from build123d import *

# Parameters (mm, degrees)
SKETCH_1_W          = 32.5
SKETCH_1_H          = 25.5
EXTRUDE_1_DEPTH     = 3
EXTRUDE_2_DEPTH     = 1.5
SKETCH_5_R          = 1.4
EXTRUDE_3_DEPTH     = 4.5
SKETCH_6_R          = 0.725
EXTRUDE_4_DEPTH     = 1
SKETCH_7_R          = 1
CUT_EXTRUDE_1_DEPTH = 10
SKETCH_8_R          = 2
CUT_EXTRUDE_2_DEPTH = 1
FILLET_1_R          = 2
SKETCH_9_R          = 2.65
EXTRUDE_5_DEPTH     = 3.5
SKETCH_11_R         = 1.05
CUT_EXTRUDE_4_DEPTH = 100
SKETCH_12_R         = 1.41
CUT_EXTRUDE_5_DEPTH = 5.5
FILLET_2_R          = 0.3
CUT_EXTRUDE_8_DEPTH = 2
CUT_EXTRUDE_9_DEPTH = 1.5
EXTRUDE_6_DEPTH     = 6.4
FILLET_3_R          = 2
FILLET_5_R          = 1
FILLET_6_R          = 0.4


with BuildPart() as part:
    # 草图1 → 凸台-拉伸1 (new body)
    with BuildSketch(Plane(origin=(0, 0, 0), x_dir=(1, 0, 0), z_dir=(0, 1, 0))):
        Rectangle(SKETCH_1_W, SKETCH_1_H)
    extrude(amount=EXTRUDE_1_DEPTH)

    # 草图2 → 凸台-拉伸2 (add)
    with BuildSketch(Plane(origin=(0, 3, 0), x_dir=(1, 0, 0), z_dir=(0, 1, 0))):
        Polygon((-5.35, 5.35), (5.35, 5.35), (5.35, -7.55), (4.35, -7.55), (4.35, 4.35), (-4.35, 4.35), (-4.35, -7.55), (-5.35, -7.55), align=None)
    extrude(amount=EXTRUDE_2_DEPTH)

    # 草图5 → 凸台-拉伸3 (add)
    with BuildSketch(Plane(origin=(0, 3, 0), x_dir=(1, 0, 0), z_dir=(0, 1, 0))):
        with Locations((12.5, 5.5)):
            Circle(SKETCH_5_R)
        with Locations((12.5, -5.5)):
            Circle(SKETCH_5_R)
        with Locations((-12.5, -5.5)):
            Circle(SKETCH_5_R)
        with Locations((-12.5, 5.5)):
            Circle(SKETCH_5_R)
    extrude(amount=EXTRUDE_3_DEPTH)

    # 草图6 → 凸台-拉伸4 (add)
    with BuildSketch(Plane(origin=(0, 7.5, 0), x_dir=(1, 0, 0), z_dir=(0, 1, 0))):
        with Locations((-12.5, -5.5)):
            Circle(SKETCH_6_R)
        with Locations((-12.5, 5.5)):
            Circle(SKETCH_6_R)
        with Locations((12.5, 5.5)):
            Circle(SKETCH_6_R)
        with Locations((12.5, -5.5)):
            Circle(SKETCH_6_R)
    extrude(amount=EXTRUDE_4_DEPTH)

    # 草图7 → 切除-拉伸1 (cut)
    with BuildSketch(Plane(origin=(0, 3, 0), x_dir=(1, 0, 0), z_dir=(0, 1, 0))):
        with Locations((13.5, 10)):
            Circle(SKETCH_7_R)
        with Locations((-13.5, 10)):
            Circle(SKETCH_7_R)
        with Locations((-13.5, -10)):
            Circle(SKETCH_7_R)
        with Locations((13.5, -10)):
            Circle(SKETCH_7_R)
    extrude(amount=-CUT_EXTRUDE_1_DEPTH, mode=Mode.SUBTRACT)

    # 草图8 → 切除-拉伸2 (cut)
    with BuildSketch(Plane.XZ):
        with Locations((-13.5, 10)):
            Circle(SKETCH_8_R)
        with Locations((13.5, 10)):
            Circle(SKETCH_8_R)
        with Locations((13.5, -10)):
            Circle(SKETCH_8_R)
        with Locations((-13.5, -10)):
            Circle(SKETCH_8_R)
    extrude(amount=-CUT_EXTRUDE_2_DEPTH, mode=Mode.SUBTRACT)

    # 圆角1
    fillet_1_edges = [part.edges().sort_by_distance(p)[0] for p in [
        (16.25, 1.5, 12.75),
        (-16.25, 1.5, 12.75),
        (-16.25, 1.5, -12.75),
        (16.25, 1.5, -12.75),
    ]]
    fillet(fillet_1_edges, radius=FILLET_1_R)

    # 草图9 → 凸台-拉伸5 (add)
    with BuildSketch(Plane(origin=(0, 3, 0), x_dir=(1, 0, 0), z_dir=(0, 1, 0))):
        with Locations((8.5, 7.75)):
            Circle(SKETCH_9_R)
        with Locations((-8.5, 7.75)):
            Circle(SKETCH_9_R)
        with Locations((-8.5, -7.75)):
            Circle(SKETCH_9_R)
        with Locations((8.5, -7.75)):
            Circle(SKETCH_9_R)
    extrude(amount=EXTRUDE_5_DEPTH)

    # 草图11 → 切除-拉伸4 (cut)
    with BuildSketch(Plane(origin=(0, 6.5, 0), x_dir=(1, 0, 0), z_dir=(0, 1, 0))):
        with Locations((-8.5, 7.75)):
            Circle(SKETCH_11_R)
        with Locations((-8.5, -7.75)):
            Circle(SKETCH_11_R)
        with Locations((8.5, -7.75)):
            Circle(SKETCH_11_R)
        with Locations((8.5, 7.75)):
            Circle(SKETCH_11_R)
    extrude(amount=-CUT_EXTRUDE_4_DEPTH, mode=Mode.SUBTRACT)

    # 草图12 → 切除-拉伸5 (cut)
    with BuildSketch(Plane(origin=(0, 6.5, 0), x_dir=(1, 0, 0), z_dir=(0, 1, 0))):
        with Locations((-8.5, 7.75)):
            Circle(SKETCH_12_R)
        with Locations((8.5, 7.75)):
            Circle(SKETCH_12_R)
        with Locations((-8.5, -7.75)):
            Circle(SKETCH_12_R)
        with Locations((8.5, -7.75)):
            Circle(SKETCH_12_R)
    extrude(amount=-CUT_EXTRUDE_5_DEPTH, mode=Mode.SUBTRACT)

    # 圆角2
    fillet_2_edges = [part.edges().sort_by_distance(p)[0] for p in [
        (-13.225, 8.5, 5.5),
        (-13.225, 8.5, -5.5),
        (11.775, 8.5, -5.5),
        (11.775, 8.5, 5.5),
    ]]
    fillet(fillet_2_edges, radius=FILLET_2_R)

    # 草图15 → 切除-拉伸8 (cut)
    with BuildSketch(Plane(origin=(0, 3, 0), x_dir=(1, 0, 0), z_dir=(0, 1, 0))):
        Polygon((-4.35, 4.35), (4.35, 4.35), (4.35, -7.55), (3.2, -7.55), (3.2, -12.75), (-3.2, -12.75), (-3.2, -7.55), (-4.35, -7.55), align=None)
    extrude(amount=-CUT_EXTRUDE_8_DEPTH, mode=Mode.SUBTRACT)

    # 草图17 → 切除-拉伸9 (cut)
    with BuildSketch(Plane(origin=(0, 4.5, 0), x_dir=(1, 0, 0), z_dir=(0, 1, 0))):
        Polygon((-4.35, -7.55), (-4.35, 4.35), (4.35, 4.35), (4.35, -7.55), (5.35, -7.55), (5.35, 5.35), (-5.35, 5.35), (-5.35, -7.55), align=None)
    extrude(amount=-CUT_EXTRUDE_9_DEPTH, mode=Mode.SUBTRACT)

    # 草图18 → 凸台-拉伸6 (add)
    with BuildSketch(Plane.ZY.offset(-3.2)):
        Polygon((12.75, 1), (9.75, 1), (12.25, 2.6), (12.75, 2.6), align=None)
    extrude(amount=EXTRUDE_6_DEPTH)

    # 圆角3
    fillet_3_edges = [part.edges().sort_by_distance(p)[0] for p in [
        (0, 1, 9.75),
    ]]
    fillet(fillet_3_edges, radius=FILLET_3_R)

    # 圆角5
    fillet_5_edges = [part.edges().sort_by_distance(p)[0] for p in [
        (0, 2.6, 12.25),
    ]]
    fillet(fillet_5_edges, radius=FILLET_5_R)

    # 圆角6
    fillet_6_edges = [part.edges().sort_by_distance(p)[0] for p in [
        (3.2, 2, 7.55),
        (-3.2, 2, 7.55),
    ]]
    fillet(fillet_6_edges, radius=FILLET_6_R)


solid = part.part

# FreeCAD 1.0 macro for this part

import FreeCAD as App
import Part
import Sketcher

V = App.Vector


def edges_at(feature, points):
    """Names of the edges that pass closest to the given points."""
    edges = feature.Shape.Edges
    near = lambda p: min(range(len(edges)), key=lambda i: edges[i].distToShape(Part.Vertex(*p))[0])
    return sorted({f"Edge{near(p) + 1}" for p in points})

doc = App.newDocument("Part")
body = doc.addObject("PartDesign::Body", "Body")

# Sketch on XZ plane
sketch1 = body.newObject("Sketcher::SketchObject", "Sketch")
sketch1.AttachmentSupport = (doc.getObject("XZ_Plane"), [""])
sketch1.MapMode = "FlatFace"
sketch1.addGeometry(Part.LineSegment(V(-16.25, -12.75, 0), V(-16.25, 12.75, 0)), False)
sketch1.addGeometry(Part.LineSegment(V(-16.25, 12.75, 0), V(16.25, 12.75, 0)), False)
sketch1.addGeometry(Part.LineSegment(V(16.25, 12.75, 0), V(16.25, -12.75, 0)), False)
sketch1.addGeometry(Part.LineSegment(V(16.25, -12.75, 0), V(-16.25, -12.75, 0)), False)
sketch1.addConstraint(Sketcher.Constraint("Coincident", 0, 2, 1, 1))
sketch1.addConstraint(Sketcher.Constraint("Coincident", 1, 2, 2, 1))
sketch1.addConstraint(Sketcher.Constraint("Coincident", 2, 2, 3, 1))
sketch1.addConstraint(Sketcher.Constraint("Coincident", 3, 2, 0, 1))
sketch1.addConstraint(Sketcher.Constraint("Vertical", 0))
sketch1.addConstraint(Sketcher.Constraint("Horizontal", 1))
sketch1.addConstraint(Sketcher.Constraint("Vertical", 2))
sketch1.addConstraint(Sketcher.Constraint("Horizontal", 3))
sketch1.addConstraint(Sketcher.Constraint("Symmetric", 0, 2, 2, 2, -1, 1))
sketch1.addConstraint(Sketcher.Constraint("DistanceX", 1, 1, 1, 2, 32.5))
sketch1.addConstraint(Sketcher.Constraint("DistanceY", 0, 1, 0, 2, 25.5))
pad1 = body.newObject("PartDesign::Pad", "Pad")
pad1.Profile = sketch1
pad1.Length = 3
pad1.Reversed = True

# Sketch on XZ plane
sketch2 = body.newObject("Sketcher::SketchObject", "Sketch001")
sketch2.AttachmentSupport = (doc.getObject("XZ_Plane"), [""])
sketch2.MapMode = "FlatFace"
sketch2.AttachmentOffset = App.Placement(V(0, 0, -3), App.Rotation())
sketch2.addGeometry(Part.LineSegment(V(5.35, -5.35, 0), V(-5.35, -5.35, 0)), False)
sketch2.addGeometry(Part.LineSegment(V(-5.35, -5.35, 0), V(-5.35, 7.55, 0)), False)
sketch2.addGeometry(Part.LineSegment(V(-5.35, 7.55, 0), V(-4.35, 7.55, 0)), False)
sketch2.addGeometry(Part.LineSegment(V(-4.35, 7.55, 0), V(-4.35, -4.35, 0)), False)
sketch2.addGeometry(Part.LineSegment(V(-4.35, -4.35, 0), V(4.35, -4.35, 0)), False)
sketch2.addGeometry(Part.LineSegment(V(4.35, -4.35, 0), V(4.35, 7.55, 0)), False)
sketch2.addGeometry(Part.LineSegment(V(4.35, 7.55, 0), V(5.35, 7.55, 0)), False)
sketch2.addGeometry(Part.LineSegment(V(5.35, 7.55, 0), V(5.35, -5.35, 0)), False)
sketch2.addConstraint(Sketcher.Constraint("Coincident", 0, 2, 1, 1))
sketch2.addConstraint(Sketcher.Constraint("Coincident", 1, 2, 2, 1))
sketch2.addConstraint(Sketcher.Constraint("Coincident", 2, 2, 3, 1))
sketch2.addConstraint(Sketcher.Constraint("Coincident", 3, 2, 4, 1))
sketch2.addConstraint(Sketcher.Constraint("Coincident", 4, 2, 5, 1))
sketch2.addConstraint(Sketcher.Constraint("Coincident", 5, 2, 6, 1))
sketch2.addConstraint(Sketcher.Constraint("Coincident", 6, 2, 7, 1))
sketch2.addConstraint(Sketcher.Constraint("Coincident", 7, 2, 0, 1))
sketch2.addConstraint(Sketcher.Constraint("Horizontal", 0))
sketch2.addConstraint(Sketcher.Constraint("Vertical", 1))
sketch2.addConstraint(Sketcher.Constraint("Horizontal", 2))
sketch2.addConstraint(Sketcher.Constraint("Vertical", 3))
sketch2.addConstraint(Sketcher.Constraint("Horizontal", 4))
sketch2.addConstraint(Sketcher.Constraint("Vertical", 5))
sketch2.addConstraint(Sketcher.Constraint("Horizontal", 6))
sketch2.addConstraint(Sketcher.Constraint("Vertical", 7))
sketch2.addConstraint(Sketcher.Constraint("Symmetric", 2, 2, 5, 2, -2))
sketch2.addConstraint(Sketcher.Constraint("Equal", 2, 6))
sketch2.addConstraint(Sketcher.Constraint("DistanceX", 2, 1, 2, 2, 1.0))
sketch2.addConstraint(Sketcher.Constraint("DistanceX", 0, 2, 0, 1, 10.7))
sketch2.addConstraint(Sketcher.Constraint("DistanceY", 1, 1, 1, 2, 12.9))
sketch2.addConstraint(Sketcher.Constraint("DistanceY", 3, 2, 3, 1, 11.9))
sketch2.addConstraint(Sketcher.Constraint("DistanceY", 0, 2, -1, 1, 5.35))
pad2 = body.newObject("PartDesign::Pad", "Pad001")
pad2.Profile = sketch2
pad2.Length = 1.5
pad2.Reversed = True

# Sketch on XZ plane
sketch3 = body.newObject("Sketcher::SketchObject", "Sketch002")
sketch3.AttachmentSupport = (doc.getObject("XZ_Plane"), [""])
sketch3.MapMode = "FlatFace"
sketch3.AttachmentOffset = App.Placement(V(0, 0, -3), App.Rotation())
sketch3.addGeometry(Part.Circle(V(12.5, -5.5, 0), V(0, 0, 1), 1.4), False)
sketch3.addGeometry(Part.Circle(V(12.5, 5.5, 0), V(0, 0, 1), 1.4), False)
sketch3.addGeometry(Part.Circle(V(-12.5, 5.5, 0), V(0, 0, 1), 1.4), False)
sketch3.addGeometry(Part.Circle(V(-12.5, -5.5, 0), V(0, 0, 1), 1.4), False)
sketch3.addConstraint(Sketcher.Constraint("Equal", 0, 1))
sketch3.addConstraint(Sketcher.Constraint("Equal", 1, 2))
sketch3.addConstraint(Sketcher.Constraint("Equal", 2, 3))
sketch3.addConstraint(Sketcher.Constraint("Symmetric", 0, 3, 2, 3, -1, 1))
sketch3.addConstraint(Sketcher.Constraint("Symmetric", 1, 3, 3, 3, -1, 1))
sketch3.addConstraint(Sketcher.Constraint("Symmetric", 1, 3, 2, 3, -2))
sketch3.addConstraint(Sketcher.Constraint("Diameter", 0, 2.8))
sketch3.addConstraint(Sketcher.Constraint("DistanceY", 0, 3, 1, 3, 11.0))
sketch3.addConstraint(Sketcher.Constraint("DistanceX", 2, 3, 1, 3, 25.0))
pad3 = body.newObject("PartDesign::Pad", "Pad002")
pad3.Profile = sketch3
pad3.Length = 4.5
pad3.Reversed = True

# Sketch on XZ plane
sketch4 = body.newObject("Sketcher::SketchObject", "Sketch003")
sketch4.AttachmentSupport = (doc.getObject("XZ_Plane"), [""])
sketch4.MapMode = "FlatFace"
sketch4.AttachmentOffset = App.Placement(V(0, 0, -7.5), App.Rotation())
sketch4.addGeometry(Part.Circle(V(-12.5, 5.5, 0), V(0, 0, 1), 0.725), False)
sketch4.addGeometry(Part.Circle(V(-12.5, -5.5, 0), V(0, 0, 1), 0.725), False)
sketch4.addGeometry(Part.Circle(V(12.5, -5.5, 0), V(0, 0, 1), 0.725), False)
sketch4.addGeometry(Part.Circle(V(12.5, 5.5, 0), V(0, 0, 1), 0.725), False)
sketch4.addConstraint(Sketcher.Constraint("Equal", 0, 1))
sketch4.addConstraint(Sketcher.Constraint("Equal", 1, 2))
sketch4.addConstraint(Sketcher.Constraint("Equal", 2, 3))
sketch4.addConstraint(Sketcher.Constraint("Symmetric", 0, 3, 2, 3, -1, 1))
sketch4.addConstraint(Sketcher.Constraint("Symmetric", 1, 3, 3, 3, -1, 1))
sketch4.addConstraint(Sketcher.Constraint("Symmetric", 1, 3, 2, 3, -2))
sketch4.addConstraint(Sketcher.Constraint("Diameter", 0, 1.45))
sketch4.addConstraint(Sketcher.Constraint("DistanceY", 1, 3, 0, 3, 11.0))
sketch4.addConstraint(Sketcher.Constraint("DistanceX", 1, 3, 2, 3, 25.0))
pad4 = body.newObject("PartDesign::Pad", "Pad003")
pad4.Profile = sketch4
pad4.Length = 1
pad4.Reversed = True

# Sketch on XZ plane
sketch5 = body.newObject("Sketcher::SketchObject", "Sketch004")
sketch5.AttachmentSupport = (doc.getObject("XZ_Plane"), [""])
sketch5.MapMode = "FlatFace"
sketch5.AttachmentOffset = App.Placement(V(0, 0, -3), App.Rotation())
sketch5.addGeometry(Part.Circle(V(13.5, -10, 0), V(0, 0, 1), 1), False)
sketch5.addGeometry(Part.Circle(V(-13.5, -10, 0), V(0, 0, 1), 1), False)
sketch5.addGeometry(Part.Circle(V(-13.5, 10, 0), V(0, 0, 1), 1), False)
sketch5.addGeometry(Part.Circle(V(13.5, 10, 0), V(0, 0, 1), 1), False)
sketch5.addConstraint(Sketcher.Constraint("Equal", 0, 1))
sketch5.addConstraint(Sketcher.Constraint("Equal", 1, 2))
sketch5.addConstraint(Sketcher.Constraint("Equal", 2, 3))
sketch5.addConstraint(Sketcher.Constraint("Symmetric", 0, 3, 2, 3, -1, 1))
sketch5.addConstraint(Sketcher.Constraint("Symmetric", 1, 3, 3, 3, -1, 1))
sketch5.addConstraint(Sketcher.Constraint("Symmetric", 0, 3, 1, 3, -2))
sketch5.addConstraint(Sketcher.Constraint("Diameter", 0, 2.0))
sketch5.addConstraint(Sketcher.Constraint("DistanceY", 0, 3, -1, 1, 10.0))
sketch5.addConstraint(Sketcher.Constraint("DistanceX", 1, 3, 0, 3, 27.0))
pocket1 = body.newObject("PartDesign::Pocket", "Pocket")
pocket1.Profile = sketch5
pocket1.Length = 10
pocket1.Reversed = True

# Sketch on XZ plane
sketch6 = body.newObject("Sketcher::SketchObject", "Sketch005")
sketch6.AttachmentSupport = (doc.getObject("XZ_Plane"), [""])
sketch6.MapMode = "FlatFace"
sketch6.addGeometry(Part.Circle(V(-13.5, 10, 0), V(0, 0, 1), 2), False)
sketch6.addGeometry(Part.Circle(V(13.5, 10, 0), V(0, 0, 1), 2), False)
sketch6.addGeometry(Part.Circle(V(13.5, -10, 0), V(0, 0, 1), 2), False)
sketch6.addGeometry(Part.Circle(V(-13.5, -10, 0), V(0, 0, 1), 2), False)
sketch6.addConstraint(Sketcher.Constraint("Equal", 0, 1))
sketch6.addConstraint(Sketcher.Constraint("Equal", 1, 2))
sketch6.addConstraint(Sketcher.Constraint("Equal", 2, 3))
sketch6.addConstraint(Sketcher.Constraint("Symmetric", 0, 3, 2, 3, -1, 1))
sketch6.addConstraint(Sketcher.Constraint("Symmetric", 1, 3, 3, 3, -1, 1))
sketch6.addConstraint(Sketcher.Constraint("Symmetric", 0, 3, 1, 3, -2))
sketch6.addConstraint(Sketcher.Constraint("Diameter", 0, 4.0))
sketch6.addConstraint(Sketcher.Constraint("DistanceY", -1, 1, 0, 3, 10.0))
sketch6.addConstraint(Sketcher.Constraint("DistanceX", 0, 3, 1, 3, 27.0))
pocket2 = body.newObject("PartDesign::Pocket", "Pocket001")
pocket2.Profile = sketch6
pocket2.Length = 1
doc.recompute()

fillet = body.newObject("PartDesign::Fillet", "Fillet")
fillet.Base = (pocket2, edges_at(pocket2, [
    (16.25, 1.5, 12.75),
    (-16.25, 1.5, 12.75),
    (-16.25, 1.5, -12.75),
    (16.25, 1.5, -12.75),
]))
fillet.Radius = 2

# Sketch on XZ plane
sketch7 = body.newObject("Sketcher::SketchObject", "Sketch006")
sketch7.AttachmentSupport = (doc.getObject("XZ_Plane"), [""])
sketch7.MapMode = "FlatFace"
sketch7.AttachmentOffset = App.Placement(V(0, 0, -3), App.Rotation())
sketch7.addGeometry(Part.Circle(V(8.5, -7.75, 0), V(0, 0, 1), 2.65), False)
sketch7.addGeometry(Part.Circle(V(-8.5, -7.75, 0), V(0, 0, 1), 2.65), False)
sketch7.addGeometry(Part.Circle(V(-8.5, 7.75, 0), V(0, 0, 1), 2.65), False)
sketch7.addGeometry(Part.Circle(V(8.5, 7.75, 0), V(0, 0, 1), 2.65), False)
sketch7.addConstraint(Sketcher.Constraint("Equal", 0, 1))
sketch7.addConstraint(Sketcher.Constraint("Equal", 1, 2))
sketch7.addConstraint(Sketcher.Constraint("Equal", 2, 3))
sketch7.addConstraint(Sketcher.Constraint("Symmetric", 0, 3, 2, 3, -1, 1))
sketch7.addConstraint(Sketcher.Constraint("Symmetric", 1, 3, 3, 3, -1, 1))
sketch7.addConstraint(Sketcher.Constraint("Symmetric", 0, 3, 1, 3, -2))
sketch7.addConstraint(Sketcher.Constraint("Diameter", 0, 5.3))
sketch7.addConstraint(Sketcher.Constraint("DistanceX", 1, 3, 0, 3, 17.0))
sketch7.addConstraint(Sketcher.Constraint("DistanceY", 1, 3, 2, 3, 15.5))
pad5 = body.newObject("PartDesign::Pad", "Pad004")
pad5.Profile = sketch7
pad5.Length = 3.5
pad5.Reversed = True

# Sketch on XZ plane
sketch8 = body.newObject("Sketcher::SketchObject", "Sketch007")
sketch8.AttachmentSupport = (doc.getObject("XZ_Plane"), [""])
sketch8.MapMode = "FlatFace"
sketch8.AttachmentOffset = App.Placement(V(0, 0, -6.5), App.Rotation())
sketch8.addGeometry(Part.Circle(V(-8.5, -7.75, 0), V(0, 0, 1), 1.05), False)
sketch8.addGeometry(Part.Circle(V(-8.5, 7.75, 0), V(0, 0, 1), 1.05), False)
sketch8.addGeometry(Part.Circle(V(8.5, 7.75, 0), V(0, 0, 1), 1.05), False)
sketch8.addGeometry(Part.Circle(V(8.5, -7.75, 0), V(0, 0, 1), 1.05), False)
sketch8.addConstraint(Sketcher.Constraint("Equal", 0, 1))
sketch8.addConstraint(Sketcher.Constraint("Equal", 1, 2))
sketch8.addConstraint(Sketcher.Constraint("Equal", 2, 3))
sketch8.addConstraint(Sketcher.Constraint("Symmetric", 0, 3, 2, 3, -1, 1))
sketch8.addConstraint(Sketcher.Constraint("Symmetric", 1, 3, 3, 3, -1, 1))
sketch8.addConstraint(Sketcher.Constraint("Symmetric", 1, 3, 2, 3, -2))
sketch8.addConstraint(Sketcher.Constraint("Diameter", 0, 2.1))
sketch8.addConstraint(Sketcher.Constraint("DistanceX", 1, 3, 2, 3, 17.0))
sketch8.addConstraint(Sketcher.Constraint("DistanceY", 0, 3, 1, 3, 15.5))
pocket3 = body.newObject("PartDesign::Pocket", "Pocket002")
pocket3.Profile = sketch8
pocket3.Length = 100
pocket3.Reversed = True

# Sketch on XZ plane
sketch9 = body.newObject("Sketcher::SketchObject", "Sketch008")
sketch9.AttachmentSupport = (doc.getObject("XZ_Plane"), [""])
sketch9.MapMode = "FlatFace"
sketch9.AttachmentOffset = App.Placement(V(0, 0, -6.5), App.Rotation())
sketch9.addGeometry(Part.Circle(V(-8.5, -7.75, 0), V(0, 0, 1), 1.41), False)
sketch9.addGeometry(Part.Circle(V(8.5, -7.75, 0), V(0, 0, 1), 1.41), False)
sketch9.addGeometry(Part.Circle(V(-8.5, 7.75, 0), V(0, 0, 1), 1.41), False)
sketch9.addGeometry(Part.Circle(V(8.5, 7.75, 0), V(0, 0, 1), 1.41), False)
sketch9.addConstraint(Sketcher.Constraint("Equal", 0, 1))
sketch9.addConstraint(Sketcher.Constraint("Equal", 1, 2))
sketch9.addConstraint(Sketcher.Constraint("Equal", 2, 3))
sketch9.addConstraint(Sketcher.Constraint("Symmetric", 1, 3, 2, 3, -1, 1))
sketch9.addConstraint(Sketcher.Constraint("Symmetric", 0, 3, 3, 3, -1, 1))
sketch9.addConstraint(Sketcher.Constraint("Symmetric", 0, 3, 1, 3, -2))
sketch9.addConstraint(Sketcher.Constraint("Diameter", 0, 2.82))
sketch9.addConstraint(Sketcher.Constraint("DistanceX", 0, 3, 1, 3, 17.0))
sketch9.addConstraint(Sketcher.Constraint("DistanceY", 0, 3, 2, 3, 15.5))
pocket4 = body.newObject("PartDesign::Pocket", "Pocket003")
pocket4.Profile = sketch9
pocket4.Length = 5.5
pocket4.Reversed = True
doc.recompute()

fillet2 = body.newObject("PartDesign::Fillet", "Fillet001")
fillet2.Base = (pocket4, edges_at(pocket4, [
    (-13.225, 8.5, 5.5),
    (-13.225, 8.5, -5.5),
    (11.775, 8.5, -5.5),
    (11.775, 8.5, 5.5),
]))
fillet2.Radius = 0.3

# Sketch on XZ plane
sketch10 = body.newObject("Sketcher::SketchObject", "Sketch009")
sketch10.AttachmentSupport = (doc.getObject("XZ_Plane"), [""])
sketch10.MapMode = "FlatFace"
sketch10.AttachmentOffset = App.Placement(V(0, 0, -3), App.Rotation())
sketch10.addGeometry(Part.LineSegment(V(4.35, -4.35, 0), V(-4.35, -4.35, 0)), False)
sketch10.addGeometry(Part.LineSegment(V(-4.35, -4.35, 0), V(-4.35, 7.55, 0)), False)
sketch10.addGeometry(Part.LineSegment(V(-4.35, 7.55, 0), V(-3.2, 7.55, 0)), False)
sketch10.addGeometry(Part.LineSegment(V(-3.2, 7.55, 0), V(-3.2, 12.75, 0)), False)
sketch10.addGeometry(Part.LineSegment(V(-3.2, 12.75, 0), V(3.2, 12.75, 0)), False)
sketch10.addGeometry(Part.LineSegment(V(3.2, 12.75, 0), V(3.2, 7.55, 0)), False)
sketch10.addGeometry(Part.LineSegment(V(3.2, 7.55, 0), V(4.35, 7.55, 0)), False)
sketch10.addGeometry(Part.LineSegment(V(4.35, 7.55, 0), V(4.35, -4.35, 0)), False)
sketch10.addConstraint(Sketcher.Constraint("Coincident", 0, 2, 1, 1))
sketch10.addConstraint(Sketcher.Constraint("Coincident", 1, 2, 2, 1))
sketch10.addConstraint(Sketcher.Constraint("Coincident", 2, 2, 3, 1))
sketch10.addConstraint(Sketcher.Constraint("Coincident", 3, 2, 4, 1))
sketch10.addConstraint(Sketcher.Constraint("Coincident", 4, 2, 5, 1))
sketch10.addConstraint(Sketcher.Constraint("Coincident", 5, 2, 6, 1))
sketch10.addConstraint(Sketcher.Constraint("Coincident", 6, 2, 7, 1))
sketch10.addConstraint(Sketcher.Constraint("Coincident", 7, 2, 0, 1))
sketch10.addConstraint(Sketcher.Constraint("Horizontal", 0))
sketch10.addConstraint(Sketcher.Constraint("Vertical", 1))
sketch10.addConstraint(Sketcher.Constraint("Horizontal", 2))
sketch10.addConstraint(Sketcher.Constraint("Vertical", 3))
sketch10.addConstraint(Sketcher.Constraint("Horizontal", 4))
sketch10.addConstraint(Sketcher.Constraint("Vertical", 5))
sketch10.addConstraint(Sketcher.Constraint("Horizontal", 6))
sketch10.addConstraint(Sketcher.Constraint("Vertical", 7))
sketch10.addConstraint(Sketcher.Constraint("Symmetric", 2, 2, 5, 2, -2))
sketch10.addConstraint(Sketcher.Constraint("Equal", 2, 6))
sketch10.addConstraint(Sketcher.Constraint("DistanceX", 0, 2, 0, 1, 8.7))
sketch10.addConstraint(Sketcher.Constraint("DistanceX", 4, 1, 4, 2, 6.4))
sketch10.addConstraint(Sketcher.Constraint("DistanceY", 1, 1, 1, 2, 11.9))
sketch10.addConstraint(Sketcher.Constraint("DistanceY", 3, 1, 3, 2, 5.2))
sketch10.addConstraint(Sketcher.Constraint("DistanceY", 0, 2, -1, 1, 4.35))
pocket5 = body.newObject("PartDesign::Pocket", "Pocket004")
pocket5.Profile = sketch10
pocket5.Length = 2
pocket5.Reversed = True

# Sketch on XZ plane
sketch11 = body.newObject("Sketcher::SketchObject", "Sketch010")
sketch11.AttachmentSupport = (doc.getObject("XZ_Plane"), [""])
sketch11.MapMode = "FlatFace"
sketch11.AttachmentOffset = App.Placement(V(0, 0, -4.5), App.Rotation())
sketch11.addGeometry(Part.LineSegment(V(-4.35, 7.55, 0), V(-4.35, -4.35, 0)), False)
sketch11.addGeometry(Part.LineSegment(V(-4.35, -4.35, 0), V(4.35, -4.35, 0)), False)
sketch11.addGeometry(Part.LineSegment(V(4.35, -4.35, 0), V(4.35, 7.55, 0)), False)
sketch11.addGeometry(Part.LineSegment(V(4.35, 7.55, 0), V(5.35, 7.55, 0)), False)
sketch11.addGeometry(Part.LineSegment(V(5.35, 7.55, 0), V(5.35, -5.35, 0)), False)
sketch11.addGeometry(Part.LineSegment(V(5.35, -5.35, 0), V(-5.35, -5.35, 0)), False)
sketch11.addGeometry(Part.LineSegment(V(-5.35, -5.35, 0), V(-5.35, 7.55, 0)), False)
sketch11.addGeometry(Part.LineSegment(V(-5.35, 7.55, 0), V(-4.35, 7.55, 0)), False)
sketch11.addConstraint(Sketcher.Constraint("Coincident", 0, 2, 1, 1))
sketch11.addConstraint(Sketcher.Constraint("Coincident", 1, 2, 2, 1))
sketch11.addConstraint(Sketcher.Constraint("Coincident", 2, 2, 3, 1))
sketch11.addConstraint(Sketcher.Constraint("Coincident", 3, 2, 4, 1))
sketch11.addConstraint(Sketcher.Constraint("Coincident", 4, 2, 5, 1))
sketch11.addConstraint(Sketcher.Constraint("Coincident", 5, 2, 6, 1))
sketch11.addConstraint(Sketcher.Constraint("Coincident", 6, 2, 7, 1))
sketch11.addConstraint(Sketcher.Constraint("Coincident", 7, 2, 0, 1))
sketch11.addConstraint(Sketcher.Constraint("Vertical", 0))
sketch11.addConstraint(Sketcher.Constraint("Horizontal", 1))
sketch11.addConstraint(Sketcher.Constraint("Vertical", 2))
sketch11.addConstraint(Sketcher.Constraint("Horizontal", 3))
sketch11.addConstraint(Sketcher.Constraint("Vertical", 4))
sketch11.addConstraint(Sketcher.Constraint("Horizontal", 5))
sketch11.addConstraint(Sketcher.Constraint("Vertical", 6))
sketch11.addConstraint(Sketcher.Constraint("Horizontal", 7))
sketch11.addConstraint(Sketcher.Constraint("Symmetric", 3, 2, 6, 2, -2))
sketch11.addConstraint(Sketcher.Constraint("Equal", 3, 7))
sketch11.addConstraint(Sketcher.Constraint("DistanceX", 3, 1, 3, 2, 1.0))
sketch11.addConstraint(Sketcher.Constraint("DistanceX", 1, 1, 1, 2, 8.7))
sketch11.addConstraint(Sketcher.Constraint("DistanceY", 0, 2, 0, 1, 11.9))
sketch11.addConstraint(Sketcher.Constraint("DistanceY", 4, 2, 4, 1, 12.9))
sketch11.addConstraint(Sketcher.Constraint("DistanceY", 0, 2, -1, 1, 4.35))
pocket6 = body.newObject("PartDesign::Pocket", "Pocket005")
pocket6.Profile = sketch11
pocket6.Length = 1.5
pocket6.Reversed = True

# Sketch on YZ plane
sketch12 = body.newObject("Sketcher::SketchObject", "Sketch011")
sketch12.AttachmentSupport = (doc.getObject("YZ_Plane"), [""])
sketch12.MapMode = "FlatFace"
sketch12.AttachmentOffset = App.Placement(V(0, 0, 3.2), App.Rotation())
sketch12.addGeometry(Part.LineSegment(V(1, 9.75, 0), V(1, 12.75, 0)), False)
sketch12.addGeometry(Part.LineSegment(V(1, 12.75, 0), V(2.6, 12.75, 0)), False)
sketch12.addGeometry(Part.LineSegment(V(2.6, 12.75, 0), V(2.6, 12.25, 0)), False)
sketch12.addGeometry(Part.LineSegment(V(2.6, 12.25, 0), V(1, 9.75, 0)), False)
sketch12.addConstraint(Sketcher.Constraint("Coincident", 0, 2, 1, 1))
sketch12.addConstraint(Sketcher.Constraint("Coincident", 1, 2, 2, 1))
sketch12.addConstraint(Sketcher.Constraint("Coincident", 2, 2, 3, 1))
sketch12.addConstraint(Sketcher.Constraint("Coincident", 3, 2, 0, 1))
sketch12.addConstraint(Sketcher.Constraint("Vertical", 0))
sketch12.addConstraint(Sketcher.Constraint("Horizontal", 1))
sketch12.addConstraint(Sketcher.Constraint("Vertical", 2))
sketch12.addConstraint(Sketcher.Constraint("DistanceY", 0, 1, 0, 2, 3.0))
sketch12.addConstraint(Sketcher.Constraint("DistanceX", 1, 1, 1, 2, 1.6))
sketch12.addConstraint(Sketcher.Constraint("DistanceY", 2, 2, 2, 1, 0.5))
sketch12.addConstraint(Sketcher.Constraint("DistanceX", -1, 1, 0, 2, 1.0))
sketch12.addConstraint(Sketcher.Constraint("DistanceY", -1, 1, 0, 2, 12.75))
pad6 = body.newObject("PartDesign::Pad", "Pad005")
pad6.Profile = sketch12
pad6.Length = 6.4
pad6.Reversed = True
doc.recompute()

fillet3 = body.newObject("PartDesign::Fillet", "Fillet002")
fillet3.Base = (pad6, edges_at(pad6, [(0, 1, 9.75)]))
fillet3.Radius = 2
doc.recompute()

fillet4 = body.newObject("PartDesign::Fillet", "Fillet003")
fillet4.Base = (fillet3, edges_at(fillet3, [(0, 2.6, 12.25)]))
fillet4.Radius = 1
doc.recompute()

fillet5 = body.newObject("PartDesign::Fillet", "Fillet004")
fillet5.Base = (fillet4, edges_at(fillet4, [(3.2, 2, 7.55), (-3.2, 2, 7.55)]))
fillet5.Radius = 0.4

doc.recompute()
